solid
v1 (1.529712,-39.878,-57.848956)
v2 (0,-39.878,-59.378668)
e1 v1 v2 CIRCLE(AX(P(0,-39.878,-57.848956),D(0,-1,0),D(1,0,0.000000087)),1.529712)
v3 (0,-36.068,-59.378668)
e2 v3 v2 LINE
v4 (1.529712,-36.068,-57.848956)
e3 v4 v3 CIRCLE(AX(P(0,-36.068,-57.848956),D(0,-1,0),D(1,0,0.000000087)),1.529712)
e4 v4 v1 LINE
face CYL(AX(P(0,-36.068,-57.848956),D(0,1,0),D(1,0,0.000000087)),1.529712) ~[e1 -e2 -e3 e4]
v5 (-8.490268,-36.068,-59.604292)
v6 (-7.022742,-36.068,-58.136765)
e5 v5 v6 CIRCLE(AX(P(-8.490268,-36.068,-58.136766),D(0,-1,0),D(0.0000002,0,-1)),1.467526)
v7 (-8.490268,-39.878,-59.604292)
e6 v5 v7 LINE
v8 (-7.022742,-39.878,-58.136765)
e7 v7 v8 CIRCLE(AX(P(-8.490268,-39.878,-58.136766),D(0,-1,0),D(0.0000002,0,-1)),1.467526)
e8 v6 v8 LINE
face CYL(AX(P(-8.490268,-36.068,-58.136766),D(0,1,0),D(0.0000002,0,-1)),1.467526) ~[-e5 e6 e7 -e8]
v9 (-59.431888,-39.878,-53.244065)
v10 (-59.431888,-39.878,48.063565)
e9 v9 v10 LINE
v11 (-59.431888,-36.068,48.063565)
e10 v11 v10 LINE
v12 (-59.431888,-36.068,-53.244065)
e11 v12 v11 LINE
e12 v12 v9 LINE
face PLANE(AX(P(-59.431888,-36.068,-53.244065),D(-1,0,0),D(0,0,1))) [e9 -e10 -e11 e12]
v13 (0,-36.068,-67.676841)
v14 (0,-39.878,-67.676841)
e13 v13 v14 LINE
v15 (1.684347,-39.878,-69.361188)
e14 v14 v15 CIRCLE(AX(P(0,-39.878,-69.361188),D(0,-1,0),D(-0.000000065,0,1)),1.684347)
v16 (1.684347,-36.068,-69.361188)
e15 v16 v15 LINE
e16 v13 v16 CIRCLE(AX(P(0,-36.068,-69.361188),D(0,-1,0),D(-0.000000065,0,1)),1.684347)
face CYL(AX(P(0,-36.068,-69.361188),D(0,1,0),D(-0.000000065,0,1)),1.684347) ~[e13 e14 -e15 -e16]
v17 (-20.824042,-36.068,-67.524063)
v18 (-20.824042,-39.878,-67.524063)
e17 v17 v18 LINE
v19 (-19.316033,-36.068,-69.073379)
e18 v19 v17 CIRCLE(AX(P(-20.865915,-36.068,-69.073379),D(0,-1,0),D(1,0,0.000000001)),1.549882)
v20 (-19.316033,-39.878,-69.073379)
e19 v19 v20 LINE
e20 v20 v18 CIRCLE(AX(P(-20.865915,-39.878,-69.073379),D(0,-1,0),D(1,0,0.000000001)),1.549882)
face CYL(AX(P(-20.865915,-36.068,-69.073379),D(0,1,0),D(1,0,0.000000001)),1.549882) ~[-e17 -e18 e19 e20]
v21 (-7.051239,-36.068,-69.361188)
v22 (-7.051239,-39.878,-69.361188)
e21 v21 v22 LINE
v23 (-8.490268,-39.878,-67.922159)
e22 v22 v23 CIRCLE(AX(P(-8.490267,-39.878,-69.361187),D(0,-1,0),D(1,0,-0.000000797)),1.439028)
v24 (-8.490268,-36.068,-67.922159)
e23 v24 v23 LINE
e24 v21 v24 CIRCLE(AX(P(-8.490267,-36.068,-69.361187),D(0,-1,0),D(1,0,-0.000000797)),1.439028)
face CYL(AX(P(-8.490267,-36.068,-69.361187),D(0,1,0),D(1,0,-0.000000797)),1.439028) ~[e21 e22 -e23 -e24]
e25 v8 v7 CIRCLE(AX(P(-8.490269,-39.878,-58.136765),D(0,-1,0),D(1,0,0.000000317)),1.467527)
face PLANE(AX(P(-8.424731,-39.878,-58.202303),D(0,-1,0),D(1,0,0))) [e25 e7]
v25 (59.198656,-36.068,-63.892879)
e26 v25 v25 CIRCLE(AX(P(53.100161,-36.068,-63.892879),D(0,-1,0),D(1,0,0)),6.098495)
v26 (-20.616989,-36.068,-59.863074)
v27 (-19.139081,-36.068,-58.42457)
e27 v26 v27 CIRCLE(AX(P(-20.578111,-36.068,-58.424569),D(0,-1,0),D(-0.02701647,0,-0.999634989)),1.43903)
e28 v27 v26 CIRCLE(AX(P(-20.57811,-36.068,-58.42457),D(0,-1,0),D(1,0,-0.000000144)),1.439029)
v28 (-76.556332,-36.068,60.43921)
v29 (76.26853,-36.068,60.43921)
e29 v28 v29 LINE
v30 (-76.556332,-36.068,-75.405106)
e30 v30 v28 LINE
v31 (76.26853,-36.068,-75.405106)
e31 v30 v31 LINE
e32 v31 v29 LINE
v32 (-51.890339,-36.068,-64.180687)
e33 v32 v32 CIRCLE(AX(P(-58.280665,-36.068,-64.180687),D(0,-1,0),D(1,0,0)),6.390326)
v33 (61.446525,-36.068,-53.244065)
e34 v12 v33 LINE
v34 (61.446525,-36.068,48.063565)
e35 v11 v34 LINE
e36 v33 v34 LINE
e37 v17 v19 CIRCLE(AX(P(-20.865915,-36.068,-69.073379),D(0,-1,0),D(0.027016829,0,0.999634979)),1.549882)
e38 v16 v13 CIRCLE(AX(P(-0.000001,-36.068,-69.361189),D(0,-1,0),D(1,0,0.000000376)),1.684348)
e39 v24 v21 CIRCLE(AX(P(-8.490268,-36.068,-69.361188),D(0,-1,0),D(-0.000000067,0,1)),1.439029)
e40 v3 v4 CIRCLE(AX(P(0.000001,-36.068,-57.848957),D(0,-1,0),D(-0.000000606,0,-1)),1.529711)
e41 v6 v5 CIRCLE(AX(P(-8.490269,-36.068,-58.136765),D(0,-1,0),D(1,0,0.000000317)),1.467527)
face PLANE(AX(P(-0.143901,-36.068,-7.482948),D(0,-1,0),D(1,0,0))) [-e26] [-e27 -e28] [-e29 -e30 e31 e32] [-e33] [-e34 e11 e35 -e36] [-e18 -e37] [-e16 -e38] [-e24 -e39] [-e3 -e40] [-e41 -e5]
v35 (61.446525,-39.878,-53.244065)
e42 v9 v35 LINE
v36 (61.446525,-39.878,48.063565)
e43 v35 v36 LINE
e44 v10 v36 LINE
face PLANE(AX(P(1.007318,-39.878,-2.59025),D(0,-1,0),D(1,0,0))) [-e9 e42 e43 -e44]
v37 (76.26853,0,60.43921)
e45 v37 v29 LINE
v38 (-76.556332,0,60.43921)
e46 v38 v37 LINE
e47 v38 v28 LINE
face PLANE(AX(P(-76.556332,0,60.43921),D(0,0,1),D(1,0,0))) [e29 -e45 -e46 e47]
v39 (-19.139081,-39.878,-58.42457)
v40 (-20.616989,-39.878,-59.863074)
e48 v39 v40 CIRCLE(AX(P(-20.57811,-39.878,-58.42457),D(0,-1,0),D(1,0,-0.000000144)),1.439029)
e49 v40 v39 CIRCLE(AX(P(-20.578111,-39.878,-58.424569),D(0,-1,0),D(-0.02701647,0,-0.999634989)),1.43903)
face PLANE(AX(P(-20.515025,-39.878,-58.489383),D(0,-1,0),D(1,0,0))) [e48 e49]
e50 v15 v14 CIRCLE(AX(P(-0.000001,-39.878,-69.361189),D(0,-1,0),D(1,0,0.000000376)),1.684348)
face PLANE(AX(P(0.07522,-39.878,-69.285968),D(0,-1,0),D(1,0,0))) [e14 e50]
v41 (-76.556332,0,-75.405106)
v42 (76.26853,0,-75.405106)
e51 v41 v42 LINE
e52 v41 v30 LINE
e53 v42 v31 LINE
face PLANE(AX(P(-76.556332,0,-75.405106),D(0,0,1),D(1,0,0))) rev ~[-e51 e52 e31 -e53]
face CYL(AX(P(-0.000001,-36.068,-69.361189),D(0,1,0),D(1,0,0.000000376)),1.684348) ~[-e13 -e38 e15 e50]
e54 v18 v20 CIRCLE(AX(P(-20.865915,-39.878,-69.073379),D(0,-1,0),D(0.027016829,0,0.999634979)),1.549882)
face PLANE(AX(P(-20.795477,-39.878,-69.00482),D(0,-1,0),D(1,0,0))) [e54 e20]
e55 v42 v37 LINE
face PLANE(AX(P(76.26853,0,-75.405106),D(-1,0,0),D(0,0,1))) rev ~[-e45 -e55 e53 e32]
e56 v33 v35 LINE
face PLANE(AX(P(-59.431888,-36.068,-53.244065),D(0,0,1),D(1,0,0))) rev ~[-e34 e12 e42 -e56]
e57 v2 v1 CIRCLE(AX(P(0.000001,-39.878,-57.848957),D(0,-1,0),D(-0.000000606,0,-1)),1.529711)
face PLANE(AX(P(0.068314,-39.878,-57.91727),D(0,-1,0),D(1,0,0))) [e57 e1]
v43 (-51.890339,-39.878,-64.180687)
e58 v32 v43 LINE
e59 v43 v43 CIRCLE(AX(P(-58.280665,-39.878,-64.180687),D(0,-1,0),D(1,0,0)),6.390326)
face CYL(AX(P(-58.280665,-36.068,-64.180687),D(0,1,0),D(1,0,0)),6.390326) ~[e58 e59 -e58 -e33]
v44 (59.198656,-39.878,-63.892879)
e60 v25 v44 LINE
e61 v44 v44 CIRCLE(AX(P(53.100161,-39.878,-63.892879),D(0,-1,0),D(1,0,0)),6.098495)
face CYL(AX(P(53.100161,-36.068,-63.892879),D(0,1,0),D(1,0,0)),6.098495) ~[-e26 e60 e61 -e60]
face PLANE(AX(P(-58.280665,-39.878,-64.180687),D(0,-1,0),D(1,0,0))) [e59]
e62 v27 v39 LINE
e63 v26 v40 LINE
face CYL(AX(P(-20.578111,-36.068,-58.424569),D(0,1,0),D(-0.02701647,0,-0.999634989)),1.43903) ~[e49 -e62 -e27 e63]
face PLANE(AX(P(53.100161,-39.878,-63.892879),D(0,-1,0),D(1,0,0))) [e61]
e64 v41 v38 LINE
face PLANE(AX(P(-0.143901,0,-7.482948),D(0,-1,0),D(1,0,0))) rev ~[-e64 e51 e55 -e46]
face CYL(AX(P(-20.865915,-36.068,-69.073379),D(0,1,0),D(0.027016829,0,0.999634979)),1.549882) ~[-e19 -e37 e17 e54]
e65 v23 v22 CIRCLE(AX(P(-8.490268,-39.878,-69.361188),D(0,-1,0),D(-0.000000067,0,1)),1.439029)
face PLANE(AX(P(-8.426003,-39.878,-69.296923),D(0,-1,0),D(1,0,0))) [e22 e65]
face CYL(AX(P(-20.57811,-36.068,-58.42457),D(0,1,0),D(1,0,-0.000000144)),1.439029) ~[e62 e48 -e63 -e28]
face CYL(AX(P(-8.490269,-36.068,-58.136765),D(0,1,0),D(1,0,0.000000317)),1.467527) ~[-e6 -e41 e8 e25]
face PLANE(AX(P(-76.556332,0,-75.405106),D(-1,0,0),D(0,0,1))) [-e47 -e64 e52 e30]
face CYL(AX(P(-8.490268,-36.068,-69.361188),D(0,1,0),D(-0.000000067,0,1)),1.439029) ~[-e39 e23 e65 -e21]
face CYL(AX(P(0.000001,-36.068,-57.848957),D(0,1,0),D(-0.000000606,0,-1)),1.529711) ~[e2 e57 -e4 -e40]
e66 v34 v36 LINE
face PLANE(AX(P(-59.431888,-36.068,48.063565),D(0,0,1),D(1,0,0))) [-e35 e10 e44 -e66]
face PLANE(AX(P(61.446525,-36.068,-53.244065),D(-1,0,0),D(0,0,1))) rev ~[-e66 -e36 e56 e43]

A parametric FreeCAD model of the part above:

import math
import FreeCAD as App
import Part
import Sketcher


def add_polygon(sketch, points):
    """Adds a closed chain of lines whose ends are joined by coincident constraints."""
    first, n = sketch.GeometryCount, len(points)
    for a, b in zip(points, points[1:] + points[:1]):
        sketch.addGeometry(Part.LineSegment(App.Vector(*a, 0), App.Vector(*b, 0)), False)
    for i in range(n):
        sketch.addConstraint(Sketcher.Constraint("Coincident", first + i, 2, first + (i + 1) % n, 1))

doc = App.newDocument("Part")
params = doc.addObject("Spreadsheet::Sheet", "Params")
for row, (alias, value) in enumerate([
    ("pad1_length", "1.42 in"),
    ("pad2_length", "0.15 in"),
], start=1):
    params.set(f"A{row}", alias)
    params.set(f"B{row}", "=" + value)
    params.setAlias(f"B{row}", alias)

body = doc.addObject("PartDesign::Body", "Body")

# Sketch on XZ plane
sketch1 = doc.addObject("Sketcher::SketchObject", "Sketch")
body.addObject(sketch1)
sketch1.AttachmentSupport = (doc.XZ_Plane, [""])
sketch1.MapMode = "FlatFace"
add_polygon(sketch1, [(-77, 60), (-77, -75), (76, -75), (76, 60)])  # lines 0-3
sketch1.addConstraint([
    Sketcher.Constraint("Vertical", 0),
    Sketcher.Constraint("Horizontal", 1),
    Sketcher.Constraint("Vertical", 2),
    Sketcher.Constraint("Horizontal", 3),
    Sketcher.Constraint("DistanceX", 1, 1, 1, 2, 152.824863),
    Sketcher.Constraint("DistanceY", 0, 2, 0, 1, 135.844316),
    Sketcher.Constraint("DistanceX", -1, 1, 1, 2, 76.26853),
    Sketcher.Constraint("DistanceY", -1, 1, 2, 2, 60.43921),
])
pad1 = doc.addObject("PartDesign::Pad", "Pad")
body.addObject(pad1)
pad1.Profile = sketch1
pad1.setExpression("Length", "Params.pad1_length")

# Sketch on XZ plane
sketch2 = doc.addObject("Sketcher::SketchObject", "Sketch001")
body.addObject(sketch2)
sketch2.AttachmentSupport = (doc.XZ_Plane, [""])
sketch2.MapMode = "FlatFace"
sketch2.AttachmentOffset = App.Placement(App.Vector(0, 0, 1.42 * 25.4), App.Rotation())
add_polygon(sketch2, [(-59.4, 48.1), (-59.4, -53.2), (61.4, -53.2), (61.4, 48.1)])  # lines 0-3
sketch2.addGeometry(Part.Circle(App.Vector(-58.3, -64.2, 0), App.Vector(0, 0, 1), 6.4), False)  # 4
sketch2.addGeometry(Part.Circle(App.Vector(53.1, -63.9, 0), App.Vector(0, 0, 1), 6.1), False)  # 5
sketch2.addGeometry(Part.ArcOfCircle(Part.Circle(App.Vector(-20.6, -58.4, 0), App.Vector(0, 0, 1), 1.4), math.radians(-92), math.radians(0)), False)  # 6
sketch2.addGeometry(Part.ArcOfCircle(Part.Circle(App.Vector(-20.6, -58.4, 0), App.Vector(0, 0, 1), 1.4), math.radians(0), math.radians(268)), False)  # 7
sketch2.addGeometry(Part.ArcOfCircle(Part.Circle(App.Vector(-20.9, -69.1, 0), App.Vector(0, 0, 1), 1.5), math.radians(0), math.radians(88)), False)  # 8
sketch2.addGeometry(Part.ArcOfCircle(Part.Circle(App.Vector(-20.9, -69.1, 0), App.Vector(0, 0, 1), 1.5), math.radians(88), math.radians(360)), False)  # 9
sketch2.addGeometry(Part.ArcOfCircle(Part.Circle(App.Vector(-8.5, -69.4, 0), App.Vector(0, 0, 1), 1.4), math.radians(90), math.radians(360)), False)  # 10
sketch2.addGeometry(Part.ArcOfCircle(Part.Circle(App.Vector(-8.5, -69.4, 0), App.Vector(0, 0, 1), 1.4), math.radians(0), math.radians(90)), False)  # 11
sketch2.addGeometry(Part.ArcOfCircle(Part.Circle(App.Vector(-8.5, -58.1, 0), App.Vector(0, 0, 1), 1.5), math.radians(0), math.radians(270)), False)  # 12
sketch2.addGeometry(Part.ArcOfCircle(Part.Circle(App.Vector(-8.5, -58.1, 0), App.Vector(0, 0, 1), 1.5), math.radians(-90), math.radians(0)), False)  # 13
sketch2.addGeometry(Part.ArcOfCircle(Part.Circle(App.Vector(0, -57.8, 0), App.Vector(0, 0, 1), 1.5), math.radians(-90), math.radians(0)), False)  # 14
sketch2.addGeometry(Part.ArcOfCircle(Part.Circle(App.Vector(0, -57.8, 0), App.Vector(0, 0, 1), 1.5), math.radians(0), math.radians(270)), False)  # 15
sketch2.addGeometry(Part.ArcOfCircle(Part.Circle(App.Vector(0, -69.4, 0), App.Vector(0, 0, 1), 1.7), math.radians(0), math.radians(90)), False)  # 16
sketch2.addGeometry(Part.ArcOfCircle(Part.Circle(App.Vector(0, -69.4, 0), App.Vector(0, 0, 1), 1.7), math.radians(90), math.radians(360)), False)  # 17
sketch2.addConstraint([
    Sketcher.Constraint("Tangent", 6, 1, 7, 2),
    Sketcher.Constraint("Coincident", 7, 1, 6, 2),
    Sketcher.Constraint("Tangent", 8, 1, 9, 2),
    Sketcher.Constraint("Coincident", 9, 1, 8, 2),
    Sketcher.Constraint("Tangent", 10, 1, 11, 2),
    Sketcher.Constraint("Coincident", 11, 1, 10, 2),
    Sketcher.Constraint("Tangent", 12, 1, 13, 2),
    Sketcher.Constraint("Coincident", 13, 1, 12, 2),
    Sketcher.Constraint("Tangent", 14, 1, 15, 2),
    Sketcher.Constraint("Coincident", 15, 1, 14, 2),
    Sketcher.Constraint("Tangent", 16, 1, 17, 2),
    Sketcher.Constraint("Coincident", 17, 1, 16, 2),
    Sketcher.Constraint("Vertical", 0),
    Sketcher.Constraint("Horizontal", 1),
    Sketcher.Constraint("Vertical", 2),
    Sketcher.Constraint("Horizontal", 3),
    Sketcher.Constraint("Equal", 7, 10),
    Sketcher.Constraint("PointOnObject", 14, 3, -2),
    Sketcher.Constraint("PointOnObject", 16, 3, -2),
    Sketcher.Constraint("PointOnObject", 14, 1, -2),
    Sketcher.Constraint("PointOnObject", 17, 1, -2),
    Sketcher.Constraint("Horizontal", 11, 3, 16, 3),
    Sketcher.Constraint("Horizontal", 6, 3, 7, 1),
    Sketcher.Constraint("Horizontal", 9, 3, 8, 1),
    Sketcher.Constraint("Horizontal", 17, 3, 11, 1),
    Sketcher.Constraint("Horizontal", 13, 3, 12, 1),
    Sketcher.Constraint("Horizontal", 14, 3, 15, 1),
    Sketcher.Constraint("Horizontal", 11, 1, 16, 1),
    Sketcher.Constraint("Vertical", 11, 3, 12, 3),
    Sketcher.Constraint("Vertical", 13, 3, 10, 1),
    Sketcher.Constraint("Vertical", 10, 1, 13, 1),
    Sketcher.Constraint("Diameter", 5, 12.19699),
    Sketcher.Constraint("Radius", 6, 1.43903),
    Sketcher.Constraint("Radius", 8, 1.549882),
    Sketcher.Constraint("Radius", 14, 1.529711),
    Sketcher.Constraint("Diameter", 4, 12.780652),
    Sketcher.Constraint("Radius", 12, 1.467527),
    Sketcher.Constraint("Radius", 16, 1.684348),
    Sketcher.Constraint("DistanceY", 0, 2, 0, 1, 101.30763),
    Sketcher.Constraint("DistanceY", 8, 3, 5, 3, 5.1805),
    Sketcher.Constraint("DistanceY", 10, 3, 4, 3, 5.180501),
    Sketcher.Constraint("DistanceX", 1, 1, 1, 2, 120.878413),
    Sketcher.Constraint("DistanceX", -1, 1, 5, 3, 53.100161),
    Sketcher.Constraint("DistanceY", 5, 3, -1, 1, 63.892879),
    Sketcher.Constraint("DistanceX", 6, 3, -1, 1, 20.578111),
    Sketcher.Constraint("DistanceY", 6, 3, -1, 1, 58.424569),
    Sketcher.Constraint("DistanceX", 12, 3, -1, 1, 8.490269),
    Sketcher.Constraint("DistanceY", 16, 3, -1, 1, 69.361189),
    Sketcher.Constraint("DistanceX", 0, 2, -1, 1, 59.431888),
    Sketcher.Constraint("DistanceX", 6, 1, -1, 1, 20.616989),
    Sketcher.Constraint("DistanceY", 13, 1, -1, 1, 59.604292),
    Sketcher.Constraint("DistanceX", 4, 3, 8, 3, 37.41475),
    Sketcher.Constraint("DistanceX", 9, 3, 11, 3, 12.375648),
    Sketcher.Constraint("DistanceY", 13, 3, 14, 3, 0.287809),
    Sketcher.Constraint("DistanceY", 14, 3, 1, 2, 4.604892),
    Sketcher.Constraint("DistanceX", 9, 1, 8, 1, 1.508009),
])
pad2 = doc.addObject("PartDesign::Pad", "Pad001")
body.addObject(pad2)
pad2.Profile = sketch2
pad2.setExpression("Length", "Params.pad2_length")

doc.recompute()
